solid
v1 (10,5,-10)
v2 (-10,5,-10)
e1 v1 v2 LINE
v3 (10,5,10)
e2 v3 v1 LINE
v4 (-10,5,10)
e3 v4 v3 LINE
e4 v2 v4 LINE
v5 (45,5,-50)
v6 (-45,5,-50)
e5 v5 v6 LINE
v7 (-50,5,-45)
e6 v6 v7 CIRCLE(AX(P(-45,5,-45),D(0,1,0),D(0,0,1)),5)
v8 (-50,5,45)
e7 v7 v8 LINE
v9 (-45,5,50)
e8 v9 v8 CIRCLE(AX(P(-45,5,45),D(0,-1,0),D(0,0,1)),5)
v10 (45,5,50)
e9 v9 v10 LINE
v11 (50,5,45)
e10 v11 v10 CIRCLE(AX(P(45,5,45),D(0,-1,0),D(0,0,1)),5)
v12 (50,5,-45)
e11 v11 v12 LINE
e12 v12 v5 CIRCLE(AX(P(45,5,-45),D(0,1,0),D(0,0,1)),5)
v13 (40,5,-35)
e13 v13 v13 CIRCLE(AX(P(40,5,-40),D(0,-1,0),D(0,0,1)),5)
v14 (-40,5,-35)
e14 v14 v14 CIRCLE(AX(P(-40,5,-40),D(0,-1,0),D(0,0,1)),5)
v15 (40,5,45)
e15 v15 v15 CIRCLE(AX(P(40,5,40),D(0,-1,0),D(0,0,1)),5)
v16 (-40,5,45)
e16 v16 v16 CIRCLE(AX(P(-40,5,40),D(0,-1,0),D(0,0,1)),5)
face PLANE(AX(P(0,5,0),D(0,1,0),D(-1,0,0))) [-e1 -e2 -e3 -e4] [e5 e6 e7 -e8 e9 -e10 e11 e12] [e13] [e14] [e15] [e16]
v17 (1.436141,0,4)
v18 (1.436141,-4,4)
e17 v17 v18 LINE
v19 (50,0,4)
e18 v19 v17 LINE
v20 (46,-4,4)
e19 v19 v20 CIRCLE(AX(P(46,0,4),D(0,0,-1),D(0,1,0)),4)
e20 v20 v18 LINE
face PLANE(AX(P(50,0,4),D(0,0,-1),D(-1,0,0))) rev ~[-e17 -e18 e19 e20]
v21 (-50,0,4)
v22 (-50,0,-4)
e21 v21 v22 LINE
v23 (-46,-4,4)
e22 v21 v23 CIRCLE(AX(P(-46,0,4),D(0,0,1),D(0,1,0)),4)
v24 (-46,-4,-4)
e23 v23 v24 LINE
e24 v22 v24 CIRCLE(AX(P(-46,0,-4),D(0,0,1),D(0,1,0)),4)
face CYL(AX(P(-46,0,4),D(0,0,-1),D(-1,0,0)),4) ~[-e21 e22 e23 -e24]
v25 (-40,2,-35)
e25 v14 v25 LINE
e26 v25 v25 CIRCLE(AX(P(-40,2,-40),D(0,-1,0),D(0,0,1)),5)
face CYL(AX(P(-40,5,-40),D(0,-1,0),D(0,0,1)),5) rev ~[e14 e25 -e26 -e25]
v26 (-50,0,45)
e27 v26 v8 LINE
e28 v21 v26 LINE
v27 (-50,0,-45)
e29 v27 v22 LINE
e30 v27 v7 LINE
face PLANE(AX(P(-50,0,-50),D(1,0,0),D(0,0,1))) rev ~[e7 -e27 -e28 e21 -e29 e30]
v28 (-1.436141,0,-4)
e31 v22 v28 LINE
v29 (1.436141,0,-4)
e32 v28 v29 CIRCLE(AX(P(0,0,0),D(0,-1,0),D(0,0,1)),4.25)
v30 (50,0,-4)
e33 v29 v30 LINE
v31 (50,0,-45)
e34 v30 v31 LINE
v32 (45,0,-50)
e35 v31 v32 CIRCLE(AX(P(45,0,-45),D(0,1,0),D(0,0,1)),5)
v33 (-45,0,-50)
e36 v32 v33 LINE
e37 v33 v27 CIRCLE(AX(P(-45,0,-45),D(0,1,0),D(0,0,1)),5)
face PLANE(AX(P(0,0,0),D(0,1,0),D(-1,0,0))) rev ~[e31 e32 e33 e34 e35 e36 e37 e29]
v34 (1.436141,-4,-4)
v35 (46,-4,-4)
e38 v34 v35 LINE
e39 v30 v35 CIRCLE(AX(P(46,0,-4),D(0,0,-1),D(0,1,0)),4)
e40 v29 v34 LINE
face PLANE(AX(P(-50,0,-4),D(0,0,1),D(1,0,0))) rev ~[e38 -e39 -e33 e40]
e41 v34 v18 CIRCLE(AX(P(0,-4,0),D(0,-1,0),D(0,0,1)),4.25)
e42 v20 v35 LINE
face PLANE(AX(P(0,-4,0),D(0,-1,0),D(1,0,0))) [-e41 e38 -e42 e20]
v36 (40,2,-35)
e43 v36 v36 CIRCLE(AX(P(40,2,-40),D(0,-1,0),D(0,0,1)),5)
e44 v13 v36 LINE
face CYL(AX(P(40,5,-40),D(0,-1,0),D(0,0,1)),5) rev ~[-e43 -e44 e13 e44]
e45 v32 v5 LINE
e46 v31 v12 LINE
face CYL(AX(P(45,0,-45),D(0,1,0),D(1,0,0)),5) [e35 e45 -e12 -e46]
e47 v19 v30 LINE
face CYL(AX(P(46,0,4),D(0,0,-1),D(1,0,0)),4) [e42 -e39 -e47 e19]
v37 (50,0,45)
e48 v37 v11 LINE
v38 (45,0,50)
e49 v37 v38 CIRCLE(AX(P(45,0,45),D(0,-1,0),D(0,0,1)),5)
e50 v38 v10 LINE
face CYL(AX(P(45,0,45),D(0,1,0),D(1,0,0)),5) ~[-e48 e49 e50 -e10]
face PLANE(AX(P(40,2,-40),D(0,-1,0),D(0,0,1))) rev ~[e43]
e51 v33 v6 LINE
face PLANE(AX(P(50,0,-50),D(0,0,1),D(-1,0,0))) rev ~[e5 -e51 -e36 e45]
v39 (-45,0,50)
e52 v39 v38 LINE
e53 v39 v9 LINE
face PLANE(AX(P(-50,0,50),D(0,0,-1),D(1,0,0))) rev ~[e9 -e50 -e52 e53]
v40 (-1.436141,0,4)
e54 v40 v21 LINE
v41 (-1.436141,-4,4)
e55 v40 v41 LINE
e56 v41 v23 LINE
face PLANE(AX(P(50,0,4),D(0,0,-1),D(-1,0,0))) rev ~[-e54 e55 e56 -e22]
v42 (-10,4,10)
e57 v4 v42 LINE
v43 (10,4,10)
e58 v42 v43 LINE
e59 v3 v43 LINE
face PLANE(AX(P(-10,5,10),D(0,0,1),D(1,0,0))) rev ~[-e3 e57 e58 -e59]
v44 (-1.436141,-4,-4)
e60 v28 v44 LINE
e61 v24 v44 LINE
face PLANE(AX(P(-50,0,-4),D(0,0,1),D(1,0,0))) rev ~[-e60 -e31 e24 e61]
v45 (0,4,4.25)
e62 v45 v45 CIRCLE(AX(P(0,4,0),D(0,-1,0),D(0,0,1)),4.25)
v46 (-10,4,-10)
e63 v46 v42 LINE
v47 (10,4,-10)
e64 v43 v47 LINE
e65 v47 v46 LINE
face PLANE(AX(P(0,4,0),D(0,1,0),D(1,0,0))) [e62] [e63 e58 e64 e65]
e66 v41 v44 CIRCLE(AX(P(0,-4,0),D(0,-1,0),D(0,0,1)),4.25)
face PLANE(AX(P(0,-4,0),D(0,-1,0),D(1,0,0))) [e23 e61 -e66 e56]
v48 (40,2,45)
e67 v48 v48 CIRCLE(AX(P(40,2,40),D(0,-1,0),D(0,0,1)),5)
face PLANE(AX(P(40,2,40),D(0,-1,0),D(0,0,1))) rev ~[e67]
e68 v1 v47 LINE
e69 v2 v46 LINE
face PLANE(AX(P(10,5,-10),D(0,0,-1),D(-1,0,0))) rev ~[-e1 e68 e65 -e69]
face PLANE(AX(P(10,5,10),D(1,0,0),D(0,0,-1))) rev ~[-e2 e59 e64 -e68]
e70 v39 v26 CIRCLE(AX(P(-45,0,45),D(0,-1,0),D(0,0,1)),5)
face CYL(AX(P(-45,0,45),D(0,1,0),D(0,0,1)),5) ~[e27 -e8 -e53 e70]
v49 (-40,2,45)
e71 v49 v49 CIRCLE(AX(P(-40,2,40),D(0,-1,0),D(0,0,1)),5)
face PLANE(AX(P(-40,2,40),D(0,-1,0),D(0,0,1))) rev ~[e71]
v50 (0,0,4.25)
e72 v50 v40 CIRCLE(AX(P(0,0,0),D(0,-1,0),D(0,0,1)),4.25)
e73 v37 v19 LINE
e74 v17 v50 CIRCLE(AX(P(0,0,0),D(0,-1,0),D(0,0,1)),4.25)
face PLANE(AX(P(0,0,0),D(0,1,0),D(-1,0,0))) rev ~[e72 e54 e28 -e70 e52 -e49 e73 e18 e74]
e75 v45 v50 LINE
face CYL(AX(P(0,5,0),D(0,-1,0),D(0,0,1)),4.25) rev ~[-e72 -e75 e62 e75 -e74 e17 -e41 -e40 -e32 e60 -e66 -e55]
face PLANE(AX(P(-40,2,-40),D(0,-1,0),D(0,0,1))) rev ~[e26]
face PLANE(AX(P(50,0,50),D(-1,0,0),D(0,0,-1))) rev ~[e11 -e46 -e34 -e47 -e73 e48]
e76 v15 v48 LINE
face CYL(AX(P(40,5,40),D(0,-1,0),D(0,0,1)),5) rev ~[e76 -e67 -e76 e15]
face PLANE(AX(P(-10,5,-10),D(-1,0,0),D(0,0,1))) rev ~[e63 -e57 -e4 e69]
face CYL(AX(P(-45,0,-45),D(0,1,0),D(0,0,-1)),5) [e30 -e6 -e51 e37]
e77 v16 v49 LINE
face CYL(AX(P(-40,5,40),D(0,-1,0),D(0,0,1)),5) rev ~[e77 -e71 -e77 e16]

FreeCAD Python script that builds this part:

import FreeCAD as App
import Part
import Sketcher
from FreeCAD import Vector
Q = App.Units.Quantity


def edges_at(feature, points):
    """Names of the edges that pass closest to the given points."""
    edges = feature.Shape.Edges
    near = lambda p: min(range(len(edges)), key=lambda i: edges[i].distToShape(Part.Vertex(*p))[0])
    return sorted({f"Edge{near(p) + 1}" for p in points})

doc = App.newDocument("Part")
params = doc.addObject("Spreadsheet::Sheet", "Params")
for row, (alias, value) in enumerate([
    ("sketch1_width", "100 mm"),
    ("pad1_length", "5 mm"),
    ("sketch2_height", "8 mm"),
    ("sketch2_width", "100 mm"),
    ("pad2_length", "4 mm"),
    ("sketch3_diameter", "8.5 mm"),
    ("hole_diameter", "8.5 mm"),
    ("hole_depth", "9 mm"),
    ("fillet_radius", "5 mm"),
    ("sketch4_diameter", "10 mm"),
    ("hole2_diameter", "10 mm"),
    ("hole2_depth", "3 mm"),
    ("fillet2_radius", "4 mm"),
    ("sketch5_width", "20 mm"),
    ("pocket1_length", "1 mm"),
], start=1):
    params.set(f"A{row}", alias)
    params.set(f"B{row}", "=" + value)
    params.setAlias(f"B{row}", alias)

body = doc.addObject("PartDesign::Body", "Body")

# Sketch on XZ plane
sketch1 = body.newObject("Sketcher::SketchObject", "Sketch")
sketch1.AttachmentSupport = (doc.getObject("XZ_Plane"), [""])
sketch1.MapMode = "FlatFace"
sketch1.addGeometry(Part.LineSegment(Vector(50, 50, 0), Vector(50, -50, 0)), False)
sketch1.addGeometry(Part.LineSegment(Vector(50, -50, 0), Vector(-50, -50, 0)), False)
sketch1.addGeometry(Part.LineSegment(Vector(-50, -50, 0), Vector(-50, 50, 0)), False)
sketch1.addGeometry(Part.LineSegment(Vector(-50, 50, 0), Vector(50, 50, 0)), False)
sketch1.addConstraint(Sketcher.Constraint("Coincident", 0, 2, 1, 1))
sketch1.addConstraint(Sketcher.Constraint("Coincident", 1, 2, 2, 1))
sketch1.addConstraint(Sketcher.Constraint("Coincident", 2, 2, 3, 1))
sketch1.addConstraint(Sketcher.Constraint("Coincident", 3, 2, 0, 1))
sketch1.addConstraint(Sketcher.Constraint("Vertical", 0))
sketch1.addConstraint(Sketcher.Constraint("Horizontal", 1))
sketch1.addConstraint(Sketcher.Constraint("Vertical", 2))
sketch1.addConstraint(Sketcher.Constraint("Horizontal", 3))
sketch1.addConstraint(Sketcher.Constraint("Symmetric", 0, 2, 2, 2, -1, 1))
sketch1.addConstraint(Sketcher.Constraint("Equal", 3, 0))
sketch1.addConstraint(Sketcher.Constraint("DistanceX", 1, 2, 1, 1, Q("100 mm")))
sketch1.setExpression("Constraints[10]", "Params.sketch1_width")
pad1 = body.newObject("PartDesign::Pad", "Pad")
pad1.Profile = sketch1
pad1.setExpression("Length", "Params.pad1_length")
pad1.Reversed = True

# Sketch on XZ plane
sketch2 = body.newObject("Sketcher::SketchObject", "Sketch001")
sketch2.AttachmentSupport = (doc.getObject("XZ_Plane"), [""])
sketch2.MapMode = "FlatFace"
sketch2.addGeometry(Part.LineSegment(Vector(50, -4, 0), Vector(50, 4, 0)), False)
sketch2.addGeometry(Part.LineSegment(Vector(50, 4, 0), Vector(-50, 4, 0)), False)
sketch2.addGeometry(Part.LineSegment(Vector(-50, 4, 0), Vector(-50, -4, 0)), False)
sketch2.addGeometry(Part.LineSegment(Vector(-50, -4, 0), Vector(50, -4, 0)), False)
sketch2.addConstraint(Sketcher.Constraint("Coincident", 0, 2, 1, 1))
sketch2.addConstraint(Sketcher.Constraint("Coincident", 1, 2, 2, 1))
sketch2.addConstraint(Sketcher.Constraint("Coincident", 2, 2, 3, 1))
sketch2.addConstraint(Sketcher.Constraint("Coincident", 3, 2, 0, 1))
sketch2.addConstraint(Sketcher.Constraint("Vertical", 0))
sketch2.addConstraint(Sketcher.Constraint("Horizontal", 1))
sketch2.addConstraint(Sketcher.Constraint("Vertical", 2))
sketch2.addConstraint(Sketcher.Constraint("Horizontal", 3))
sketch2.addConstraint(Sketcher.Constraint("Symmetric", 0, 2, 2, 2, -1, 1))
sketch2.addConstraint(Sketcher.Constraint("DistanceY", 0, 1, 0, 2, Q("8 mm")))
sketch2.addConstraint(Sketcher.Constraint("DistanceX", 1, 2, 1, 1, Q("100 mm")))
sketch2.setExpression("Constraints[9]", "Params.sketch2_height")
sketch2.setExpression("Constraints[10]", "Params.sketch2_width")
pad2 = body.newObject("PartDesign::Pad", "Pad001")
pad2.Profile = sketch2
pad2.setExpression("Length", "Params.pad2_length")

# Sketch on XZ plane
sketch3 = body.newObject("Sketcher::SketchObject", "Sketch002")
sketch3.AttachmentSupport = (doc.getObject("XZ_Plane"), [""])
sketch3.MapMode = "FlatFace"
sketch3.AttachmentOffset = App.Placement(Vector(0, 0, -5), App.Rotation())
sketch3.addGeometry(Part.Circle(Vector(0, 0, 0), Vector(0, 0, 1), 4.2), False)
sketch3.addConstraint(Sketcher.Constraint("Coincident", 0, 3, -1, 1))
sketch3.addConstraint(Sketcher.Constraint("Diameter", 0, Q("8.5 mm")))
sketch3.setExpression("Constraints[1]", "Params.sketch3_diameter")
doc.recompute()
hole = body.newObject("PartDesign::Hole", "Hole")
hole.Profile = sketch3
hole.ThreadType = "None"
hole.setExpression("Diameter", "Params.hole_diameter")
hole.DepthType = "Dimension"
hole.setExpression("Depth", "Params.hole_depth")
hole.DrillPoint = "Flat"
hole.Reversed = True
doc.recompute()

fillet = body.newObject("PartDesign::Fillet", "Fillet")
fillet.Base = (hole, edges_at(hole, [
    (50, 2.5, 50),
    (50, 2.5, -50),
    (-50, 2.5, 50),
    (-50, 2.5, -50),
]))
fillet.setExpression("Radius", "Params.fillet_radius")

# Sketch on XZ plane
sketch4 = body.newObject("Sketcher::SketchObject", "Sketch003")
sketch4.AttachmentSupport = (doc.getObject("XZ_Plane"), [""])
sketch4.MapMode = "FlatFace"
sketch4.AttachmentOffset = App.Placement(Vector(0, 0, -5), App.Rotation())
sketch4.addGeometry(Part.Circle(Vector(-40, 40, 0), Vector(0, 0, 1), 5), False)
sketch4.addGeometry(Part.Circle(Vector(40, -40, 0), Vector(0, 0, 1), 5), False)
sketch4.addGeometry(Part.Circle(Vector(40, 40, 0), Vector(0, 0, 1), 5), False)
sketch4.addGeometry(Part.Circle(Vector(-40, -40, 0), Vector(0, 0, 1), 5), False)
sketch4.addConstraint(Sketcher.Constraint("Equal", 0, 1))
sketch4.addConstraint(Sketcher.Constraint("Equal", 1, 2))
sketch4.addConstraint(Sketcher.Constraint("Equal", 2, 3))
sketch4.addConstraint(Sketcher.Constraint("Symmetric", 0, 3, 1, 3, -1, 1))
sketch4.addConstraint(Sketcher.Constraint("Symmetric", 2, 3, 3, 3, -1, 1))
sketch4.addConstraint(Sketcher.Constraint("Symmetric", 0, 3, 2, 3, -2))
sketch4.addConstraint(Sketcher.Constraint("Diameter", 0, Q("10 mm")))
sketch4.addConstraint(Sketcher.Constraint("DistanceX", 0, 3, -1, 1, Q("40 mm")))
sketch4.addConstraint(Sketcher.Constraint("DistanceY", -1, 1, 0, 3, Q("40 mm")))
sketch4.setExpression("Constraints[6]", "Params.sketch4_diameter")
doc.recompute()
hole2 = body.newObject("PartDesign::Hole", "Hole001")
hole2.Profile = sketch4
hole2.ThreadType = "None"
hole2.setExpression("Diameter", "Params.hole2_diameter")
hole2.DepthType = "Dimension"
hole2.setExpression("Depth", "Params.hole2_depth")
hole2.DrillPoint = "Flat"
hole2.Reversed = True
doc.recompute()

fillet2 = body.newObject("PartDesign::Fillet", "Fillet001")
fillet2.Base = (hole2, edges_at(hole2, [(50, -4, 0), (-50, -4, 0)]))
fillet2.setExpression("Radius", "Params.fillet2_radius")

# Sketch on XZ plane
sketch5 = body.newObject("Sketcher::SketchObject", "Sketch004")
sketch5.AttachmentSupport = (doc.getObject("XZ_Plane"), [""])
sketch5.MapMode = "FlatFace"
sketch5.AttachmentOffset = App.Placement(Vector(0, 0, -5), App.Rotation())
sketch5.addGeometry(Part.LineSegment(Vector(10, 10, 0), Vector(10, -10, 0)), False)
sketch5.addGeometry(Part.LineSegment(Vector(10, -10, 0), Vector(-10, -10, 0)), False)
sketch5.addGeometry(Part.LineSegment(Vector(-10, -10, 0), Vector(-10, 10, 0)), False)
sketch5.addGeometry(Part.LineSegment(Vector(-10, 10, 0), Vector(10, 10, 0)), False)
sketch5.addConstraint(Sketcher.Constraint("Coincident", 0, 2, 1, 1))
sketch5.addConstraint(Sketcher.Constraint("Coincident", 1, 2, 2, 1))
sketch5.addConstraint(Sketcher.Constraint("Coincident", 2, 2, 3, 1))
sketch5.addConstraint(Sketcher.Constraint("Coincident", 3, 2, 0, 1))
sketch5.addConstraint(Sketcher.Constraint("Vertical", 0))
sketch5.addConstraint(Sketcher.Constraint("Horizontal", 1))
sketch5.addConstraint(Sketcher.Constraint("Vertical", 2))
sketch5.addConstraint(Sketcher.Constraint("Horizontal", 3))
sketch5.addConstraint(Sketcher.Constraint("Symmetric", 0, 2, 2, 2, -1, 1))
sketch5.addConstraint(Sketcher.Constraint("Equal", 3, 0))
sketch5.addConstraint(Sketcher.Constraint("DistanceX", 1, 2, 1, 1, Q("20 mm")))
sketch5.setExpression("Constraints[10]", "Params.sketch5_width")
pocket1 = body.newObject("PartDesign::Pocket", "Pocket")
pocket1.Profile = sketch5
pocket1.setExpression("Length", "Params.pocket1_length")
pocket1.Reversed = True

doc.recompute()
